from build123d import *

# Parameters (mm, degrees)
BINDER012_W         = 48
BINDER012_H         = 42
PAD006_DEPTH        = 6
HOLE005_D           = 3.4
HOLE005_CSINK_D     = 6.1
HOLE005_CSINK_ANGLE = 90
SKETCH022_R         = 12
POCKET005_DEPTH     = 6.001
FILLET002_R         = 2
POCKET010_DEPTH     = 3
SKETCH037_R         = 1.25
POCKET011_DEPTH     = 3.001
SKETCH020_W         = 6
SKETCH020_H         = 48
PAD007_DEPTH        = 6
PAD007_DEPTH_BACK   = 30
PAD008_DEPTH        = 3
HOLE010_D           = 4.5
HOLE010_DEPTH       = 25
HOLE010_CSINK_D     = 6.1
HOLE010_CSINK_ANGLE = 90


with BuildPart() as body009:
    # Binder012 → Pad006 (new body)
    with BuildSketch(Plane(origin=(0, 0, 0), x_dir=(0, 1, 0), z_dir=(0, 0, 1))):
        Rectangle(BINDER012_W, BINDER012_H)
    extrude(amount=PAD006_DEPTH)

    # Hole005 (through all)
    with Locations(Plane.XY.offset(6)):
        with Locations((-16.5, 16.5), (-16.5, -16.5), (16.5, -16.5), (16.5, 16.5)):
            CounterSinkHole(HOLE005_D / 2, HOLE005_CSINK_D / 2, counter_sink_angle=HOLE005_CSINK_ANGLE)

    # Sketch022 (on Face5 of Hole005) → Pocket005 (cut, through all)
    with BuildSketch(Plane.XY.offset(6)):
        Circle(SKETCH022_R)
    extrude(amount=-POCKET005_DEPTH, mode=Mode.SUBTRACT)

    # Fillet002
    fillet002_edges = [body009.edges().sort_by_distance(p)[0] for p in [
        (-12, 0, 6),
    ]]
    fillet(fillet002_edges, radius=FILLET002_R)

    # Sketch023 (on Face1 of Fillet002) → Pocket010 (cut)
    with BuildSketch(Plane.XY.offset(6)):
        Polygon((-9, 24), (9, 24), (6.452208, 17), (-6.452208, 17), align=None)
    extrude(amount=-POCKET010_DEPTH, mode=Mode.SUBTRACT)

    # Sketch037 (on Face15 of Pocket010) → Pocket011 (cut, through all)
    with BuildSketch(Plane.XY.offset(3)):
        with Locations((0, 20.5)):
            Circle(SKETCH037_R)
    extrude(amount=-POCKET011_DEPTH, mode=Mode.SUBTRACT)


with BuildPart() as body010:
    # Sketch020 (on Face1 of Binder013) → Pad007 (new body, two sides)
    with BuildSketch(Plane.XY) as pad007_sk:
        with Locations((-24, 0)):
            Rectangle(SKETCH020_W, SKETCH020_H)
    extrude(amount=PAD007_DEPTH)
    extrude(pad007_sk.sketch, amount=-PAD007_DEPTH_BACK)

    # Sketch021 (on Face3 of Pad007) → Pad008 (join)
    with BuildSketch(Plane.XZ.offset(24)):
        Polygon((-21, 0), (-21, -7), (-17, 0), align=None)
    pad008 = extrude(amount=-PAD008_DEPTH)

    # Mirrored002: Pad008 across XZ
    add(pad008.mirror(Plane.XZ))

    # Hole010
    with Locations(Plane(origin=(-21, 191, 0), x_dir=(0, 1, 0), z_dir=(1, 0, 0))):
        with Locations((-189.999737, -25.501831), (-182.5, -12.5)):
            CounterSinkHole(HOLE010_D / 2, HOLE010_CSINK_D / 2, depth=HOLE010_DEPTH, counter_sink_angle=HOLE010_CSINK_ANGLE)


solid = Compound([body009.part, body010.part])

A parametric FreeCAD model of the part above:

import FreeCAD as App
import Part
import Sketcher
Q = App.Units.Quantity


def edges_at(feature, points):
    """Names of the edges that pass closest to the given points."""
    edges = feature.Shape.Edges
    near = lambda p: min(range(len(edges)), key=lambda i: edges[i].distToShape(Part.Vertex(*p))[0])
    return sorted({f"Edge{near(p) + 1}" for p in points})


def add_polygon(sketch, points):
    """Adds a closed chain of lines whose ends are joined by coincident constraints."""
    first, n = sketch.GeometryCount, len(points)
    for a, b in zip(points, points[1:] + points[:1]):
        sketch.addGeometry(Part.LineSegment(App.Vector(*a, 0), App.Vector(*b, 0)), False)
    for i in range(n):
        sketch.addConstraint(Sketcher.Constraint("Coincident", first + i, 2, first + (i + 1) % n, 1))

doc = App.newDocument("Part")
body = doc.addObject("PartDesign::Body", "Body")

# Sketch on XY plane
sketch1 = body.newObject("Sketcher::SketchObject", "Sketch")
sketch1.AttachmentSupport = (doc.getObject("XY_Plane"), [""])
sketch1.MapMode = "FlatFace"
add_polygon(sketch1, [(-21, -24), (21, -24), (21, 24), (-21, 24)])  # lines 0-3
sketch1.addConstraint(Sketcher.Constraint("Horizontal", 0))
sketch1.addConstraint(Sketcher.Constraint("Vertical", 1))
sketch1.addConstraint(Sketcher.Constraint("Horizontal", 2))
sketch1.addConstraint(Sketcher.Constraint("Vertical", 3))
sketch1.addConstraint(Sketcher.Constraint("Symmetric", 0, 2, 2, 2, -1, 1))
sketch1.addConstraint(Sketcher.Constraint("DistanceX", 0, 1, 0, 2, Q("42 mm")))
sketch1.addConstraint(Sketcher.Constraint("DistanceY", 1, 1, 1, 2, Q("48 mm")))
pad1 = body.newObject("PartDesign::Pad", "Pad")
pad1.Profile = sketch1
pad1.Length = 6

# Sketch on XY plane
sketch2 = body.newObject("Sketcher::SketchObject", "Sketch001")
sketch2.AttachmentSupport = (doc.getObject("XY_Plane"), [""])
sketch2.MapMode = "FlatFace"
sketch2.AttachmentOffset = App.Placement(App.Vector(0, 0, 6), App.Rotation())
sketch2.addGeometry(Part.Circle(App.Vector(-16.5, 16.5, 0), App.Vector(0, 0, 1), 1.7), False)
sketch2.addGeometry(Part.Circle(App.Vector(-16.5, -16.5, 0), App.Vector(0, 0, 1), 1.7), False)
sketch2.addGeometry(Part.Circle(App.Vector(16.5, -16.5, 0), App.Vector(0, 0, 1), 1.7), False)
sketch2.addGeometry(Part.Circle(App.Vector(16.5, 16.5, 0), App.Vector(0, 0, 1), 1.7), False)
sketch2.addConstraint(Sketcher.Constraint("Equal", 0, 1))
sketch2.addConstraint(Sketcher.Constraint("Equal", 1, 2))
sketch2.addConstraint(Sketcher.Constraint("Equal", 2, 3))
sketch2.addConstraint(Sketcher.Constraint("Symmetric", 0, 3, 2, 3, -1, 1))
sketch2.addConstraint(Sketcher.Constraint("Symmetric", 1, 3, 3, 3, -1, 1))
sketch2.addConstraint(Sketcher.Constraint("Symmetric", 1, 3, 2, 3, -2))
sketch2.addConstraint(Sketcher.Constraint("Diameter", 0, Q("3.4 mm")))
sketch2.addConstraint(Sketcher.Constraint("DistanceY", 1, 3, 0, 3, Q("33 mm")))
sketch2.addConstraint(Sketcher.Constraint("DistanceX", 1, 3, 2, 3, Q("33 mm")))
doc.recompute()
hole = body.newObject("PartDesign::Hole", "Hole")
hole.Profile = sketch2
hole.ThreadType = "None"
hole.Diameter = 3.4
hole.DepthType = "ThroughAll"
hole.HoleCutType = "Countersink"
hole.HoleCutDiameter = 6.1
hole.HoleCutCountersinkAngle = 90

# Sketch on XY plane
sketch3 = body.newObject("Sketcher::SketchObject", "Sketch002")
sketch3.AttachmentSupport = (doc.getObject("XY_Plane"), [""])
sketch3.MapMode = "FlatFace"
sketch3.AttachmentOffset = App.Placement(App.Vector(0, 0, 6), App.Rotation())
sketch3.addGeometry(Part.Circle(App.Vector(0, 0, 0), App.Vector(0, 0, 1), 12), False)
sketch3.addConstraint(Sketcher.Constraint("Coincident", 0, 3, -1, 1))
sketch3.addConstraint(Sketcher.Constraint("Diameter", 0, Q("24 mm")))
pocket1 = body.newObject("PartDesign::Pocket", "Pocket")
pocket1.Profile = sketch3
pocket1.Type = "ThroughAll"
doc.recompute()

fillet = body.newObject("PartDesign::Fillet", "Fillet")
fillet.Base = (pocket1, edges_at(pocket1, [(-12, 0, 6)]))
fillet.Radius = 2

# Sketch on XY plane
sketch4 = body.newObject("Sketcher::SketchObject", "Sketch003")
sketch4.AttachmentSupport = (doc.getObject("XY_Plane"), [""])
sketch4.MapMode = "FlatFace"
sketch4.AttachmentOffset = App.Placement(App.Vector(0, 0, 6), App.Rotation())
add_polygon(sketch4, [(9, 24), (-9, 24), (-6, 17), (6, 17)])  # lines 0-3
sketch4.addConstraint(Sketcher.Constraint("Horizontal", 0))
sketch4.addConstraint(Sketcher.Constraint("Horizontal", 2))
sketch4.addConstraint(Sketcher.Constraint("Equal", 1, 3))
sketch4.addConstraint(Sketcher.Constraint("DistanceX", 0, 2, 0, 1, Q("18 mm")))
sketch4.addConstraint(Sketcher.Constraint("Angle", 1, Q("-69.999997 deg")))
sketch4.addConstraint(Sketcher.Constraint("DistanceX", 0, 2, -1, 1, Q("9 mm")))
sketch4.addConstraint(Sketcher.Constraint("DistanceY", -1, 1, 0, 2, Q("24 mm")))
sketch4.addConstraint(Sketcher.Constraint("DistanceY", -1, 1, 1, 2, Q("17 mm")))
pocket2 = body.newObject("PartDesign::Pocket", "Pocket001")
pocket2.Profile = sketch4
pocket2.Length = 3

# Sketch on XY plane
sketch5 = body.newObject("Sketcher::SketchObject", "Sketch004")
sketch5.AttachmentSupport = (doc.getObject("XY_Plane"), [""])
sketch5.MapMode = "FlatFace"
sketch5.AttachmentOffset = App.Placement(App.Vector(0, 0, 3), App.Rotation())
sketch5.addGeometry(Part.Circle(App.Vector(0, 20.5, 0), App.Vector(0, 0, 1), 1.2), False)
sketch5.addConstraint(Sketcher.Constraint("PointOnObject", 0, 3, -2))
sketch5.addConstraint(Sketcher.Constraint("Diameter", 0, Q("2.5 mm")))
sketch5.addConstraint(Sketcher.Constraint("DistanceY", -1, 1, 0, 3, Q("20.5 mm")))
pocket3 = body.newObject("PartDesign::Pocket", "Pocket002")
pocket3.Profile = sketch5
pocket3.Type = "ThroughAll"
body2 = doc.addObject("PartDesign::Body", "Body001")

# Sketch on XY plane
sketch6 = body2.newObject("Sketcher::SketchObject", "Sketch005")
sketch6.AttachmentSupport = (doc.getObject("XY_Plane001"), [""])
sketch6.MapMode = "FlatFace"
add_polygon(sketch6, [(-27, 24), (-27, -24), (-21, -24), (-21, 24)])  # lines 0-3
sketch6.addConstraint(Sketcher.Constraint("Vertical", 0))
sketch6.addConstraint(Sketcher.Constraint("Horizontal", 1))
sketch6.addConstraint(Sketcher.Constraint("Vertical", 2))
sketch6.addConstraint(Sketcher.Constraint("Horizontal", 3))
sketch6.addConstraint(Sketcher.Constraint("DistanceX", 1, 1, 1, 2, Q("6 mm")))
sketch6.addConstraint(Sketcher.Constraint("DistanceY", 0, 2, 0, 1, Q("48 mm")))
sketch6.addConstraint(Sketcher.Constraint("DistanceX", 0, 2, -1, 1, Q("27 mm")))
sketch6.addConstraint(Sketcher.Constraint("DistanceY", 0, 2, -1, 1, Q("24 mm")))
pad2 = body2.newObject("PartDesign::Pad", "Pad001")
pad2.Profile = sketch6
pad2.Type = "TwoLengths"
pad2.Length = 6
pad2.Length2 = 30

# Sketch on XZ plane
sketch7 = body2.newObject("Sketcher::SketchObject", "Sketch006")
sketch7.AttachmentSupport = (doc.getObject("XZ_Plane001"), [""])
sketch7.MapMode = "FlatFace"
sketch7.AttachmentOffset = App.Placement(App.Vector(0, 0, 24), App.Rotation())
add_polygon(sketch7, [(-21, 0), (-21, -7), (-17, 0)])  # lines 0-2
sketch7.addConstraint(Sketcher.Constraint("Vertical", 0))
sketch7.addConstraint(Sketcher.Constraint("Horizontal", 2))
sketch7.addConstraint(Sketcher.Constraint("PointOnObject", 1, 2, -1))
sketch7.addConstraint(Sketcher.Constraint("DistanceX", 2, 2, 2, 1, Q("4 mm")))
sketch7.addConstraint(Sketcher.Constraint("DistanceY", 0, 2, 0, 1, Q("7 mm")))
sketch7.addConstraint(Sketcher.Constraint("DistanceX", 0, 2, -1, 1, Q("21 mm")))
pad3 = body2.newObject("PartDesign::Pad", "Pad002")
pad3.Profile = sketch7
pad3.Length = 3
pad3.Reversed = True
doc.recompute()

mirrored = body2.newObject("PartDesign::Mirrored", "Mirrored")
mirrored.Originals = [pad3]
mirrored.MirrorPlane = (doc.getObject("XZ_Plane001"), [""])
body2.Tip = mirrored

# Sketch on YZ plane
sketch8 = body2.newObject("Sketcher::SketchObject", "Sketch007")
sketch8.AttachmentSupport = (doc.getObject("YZ_Plane001"), [""])
sketch8.MapMode = "FlatFace"
sketch8.AttachmentOffset = App.Placement(App.Vector(0, 0, -21), App.Rotation())
sketch8.addGeometry(Part.Circle(App.Vector(1, -25.5, 0), App.Vector(0, 0, 1), 2.2), False)
sketch8.addGeometry(Part.Circle(App.Vector(8.5, -12.5, 0), App.Vector(0, 0, 1), 2.2), False)
sketch8.addConstraint(Sketcher.Constraint("Equal", 0, 1))
sketch8.addConstraint(Sketcher.Constraint("Diameter", 0, Q("4.5 mm")))
sketch8.addConstraint(Sketcher.Constraint("DistanceX", -1, 1, 1, 3, Q("8.5 mm")))
sketch8.addConstraint(Sketcher.Constraint("DistanceY", 1, 3, -1, 1, Q("12.5 mm")))
sketch8.addConstraint(Sketcher.Constraint("DistanceY", 0, 3, -1, 1, Q("25.501831 mm")))
sketch8.addConstraint(Sketcher.Constraint("DistanceX", -1, 1, 0, 3, Q("1.000263 mm")))
doc.recompute()
hole2 = body2.newObject("PartDesign::Hole", "Hole001")
hole2.Profile = sketch8
hole2.ThreadType = "None"
hole2.Diameter = 4.5
hole2.DepthType = "Dimension"
hole2.Depth = 25
hole2.DrillPoint = "Flat"
hole2.HoleCutType = "Countersink"
hole2.HoleCutDiameter = 6.1
hole2.HoleCutCountersinkAngle = 90

doc.recompute()
